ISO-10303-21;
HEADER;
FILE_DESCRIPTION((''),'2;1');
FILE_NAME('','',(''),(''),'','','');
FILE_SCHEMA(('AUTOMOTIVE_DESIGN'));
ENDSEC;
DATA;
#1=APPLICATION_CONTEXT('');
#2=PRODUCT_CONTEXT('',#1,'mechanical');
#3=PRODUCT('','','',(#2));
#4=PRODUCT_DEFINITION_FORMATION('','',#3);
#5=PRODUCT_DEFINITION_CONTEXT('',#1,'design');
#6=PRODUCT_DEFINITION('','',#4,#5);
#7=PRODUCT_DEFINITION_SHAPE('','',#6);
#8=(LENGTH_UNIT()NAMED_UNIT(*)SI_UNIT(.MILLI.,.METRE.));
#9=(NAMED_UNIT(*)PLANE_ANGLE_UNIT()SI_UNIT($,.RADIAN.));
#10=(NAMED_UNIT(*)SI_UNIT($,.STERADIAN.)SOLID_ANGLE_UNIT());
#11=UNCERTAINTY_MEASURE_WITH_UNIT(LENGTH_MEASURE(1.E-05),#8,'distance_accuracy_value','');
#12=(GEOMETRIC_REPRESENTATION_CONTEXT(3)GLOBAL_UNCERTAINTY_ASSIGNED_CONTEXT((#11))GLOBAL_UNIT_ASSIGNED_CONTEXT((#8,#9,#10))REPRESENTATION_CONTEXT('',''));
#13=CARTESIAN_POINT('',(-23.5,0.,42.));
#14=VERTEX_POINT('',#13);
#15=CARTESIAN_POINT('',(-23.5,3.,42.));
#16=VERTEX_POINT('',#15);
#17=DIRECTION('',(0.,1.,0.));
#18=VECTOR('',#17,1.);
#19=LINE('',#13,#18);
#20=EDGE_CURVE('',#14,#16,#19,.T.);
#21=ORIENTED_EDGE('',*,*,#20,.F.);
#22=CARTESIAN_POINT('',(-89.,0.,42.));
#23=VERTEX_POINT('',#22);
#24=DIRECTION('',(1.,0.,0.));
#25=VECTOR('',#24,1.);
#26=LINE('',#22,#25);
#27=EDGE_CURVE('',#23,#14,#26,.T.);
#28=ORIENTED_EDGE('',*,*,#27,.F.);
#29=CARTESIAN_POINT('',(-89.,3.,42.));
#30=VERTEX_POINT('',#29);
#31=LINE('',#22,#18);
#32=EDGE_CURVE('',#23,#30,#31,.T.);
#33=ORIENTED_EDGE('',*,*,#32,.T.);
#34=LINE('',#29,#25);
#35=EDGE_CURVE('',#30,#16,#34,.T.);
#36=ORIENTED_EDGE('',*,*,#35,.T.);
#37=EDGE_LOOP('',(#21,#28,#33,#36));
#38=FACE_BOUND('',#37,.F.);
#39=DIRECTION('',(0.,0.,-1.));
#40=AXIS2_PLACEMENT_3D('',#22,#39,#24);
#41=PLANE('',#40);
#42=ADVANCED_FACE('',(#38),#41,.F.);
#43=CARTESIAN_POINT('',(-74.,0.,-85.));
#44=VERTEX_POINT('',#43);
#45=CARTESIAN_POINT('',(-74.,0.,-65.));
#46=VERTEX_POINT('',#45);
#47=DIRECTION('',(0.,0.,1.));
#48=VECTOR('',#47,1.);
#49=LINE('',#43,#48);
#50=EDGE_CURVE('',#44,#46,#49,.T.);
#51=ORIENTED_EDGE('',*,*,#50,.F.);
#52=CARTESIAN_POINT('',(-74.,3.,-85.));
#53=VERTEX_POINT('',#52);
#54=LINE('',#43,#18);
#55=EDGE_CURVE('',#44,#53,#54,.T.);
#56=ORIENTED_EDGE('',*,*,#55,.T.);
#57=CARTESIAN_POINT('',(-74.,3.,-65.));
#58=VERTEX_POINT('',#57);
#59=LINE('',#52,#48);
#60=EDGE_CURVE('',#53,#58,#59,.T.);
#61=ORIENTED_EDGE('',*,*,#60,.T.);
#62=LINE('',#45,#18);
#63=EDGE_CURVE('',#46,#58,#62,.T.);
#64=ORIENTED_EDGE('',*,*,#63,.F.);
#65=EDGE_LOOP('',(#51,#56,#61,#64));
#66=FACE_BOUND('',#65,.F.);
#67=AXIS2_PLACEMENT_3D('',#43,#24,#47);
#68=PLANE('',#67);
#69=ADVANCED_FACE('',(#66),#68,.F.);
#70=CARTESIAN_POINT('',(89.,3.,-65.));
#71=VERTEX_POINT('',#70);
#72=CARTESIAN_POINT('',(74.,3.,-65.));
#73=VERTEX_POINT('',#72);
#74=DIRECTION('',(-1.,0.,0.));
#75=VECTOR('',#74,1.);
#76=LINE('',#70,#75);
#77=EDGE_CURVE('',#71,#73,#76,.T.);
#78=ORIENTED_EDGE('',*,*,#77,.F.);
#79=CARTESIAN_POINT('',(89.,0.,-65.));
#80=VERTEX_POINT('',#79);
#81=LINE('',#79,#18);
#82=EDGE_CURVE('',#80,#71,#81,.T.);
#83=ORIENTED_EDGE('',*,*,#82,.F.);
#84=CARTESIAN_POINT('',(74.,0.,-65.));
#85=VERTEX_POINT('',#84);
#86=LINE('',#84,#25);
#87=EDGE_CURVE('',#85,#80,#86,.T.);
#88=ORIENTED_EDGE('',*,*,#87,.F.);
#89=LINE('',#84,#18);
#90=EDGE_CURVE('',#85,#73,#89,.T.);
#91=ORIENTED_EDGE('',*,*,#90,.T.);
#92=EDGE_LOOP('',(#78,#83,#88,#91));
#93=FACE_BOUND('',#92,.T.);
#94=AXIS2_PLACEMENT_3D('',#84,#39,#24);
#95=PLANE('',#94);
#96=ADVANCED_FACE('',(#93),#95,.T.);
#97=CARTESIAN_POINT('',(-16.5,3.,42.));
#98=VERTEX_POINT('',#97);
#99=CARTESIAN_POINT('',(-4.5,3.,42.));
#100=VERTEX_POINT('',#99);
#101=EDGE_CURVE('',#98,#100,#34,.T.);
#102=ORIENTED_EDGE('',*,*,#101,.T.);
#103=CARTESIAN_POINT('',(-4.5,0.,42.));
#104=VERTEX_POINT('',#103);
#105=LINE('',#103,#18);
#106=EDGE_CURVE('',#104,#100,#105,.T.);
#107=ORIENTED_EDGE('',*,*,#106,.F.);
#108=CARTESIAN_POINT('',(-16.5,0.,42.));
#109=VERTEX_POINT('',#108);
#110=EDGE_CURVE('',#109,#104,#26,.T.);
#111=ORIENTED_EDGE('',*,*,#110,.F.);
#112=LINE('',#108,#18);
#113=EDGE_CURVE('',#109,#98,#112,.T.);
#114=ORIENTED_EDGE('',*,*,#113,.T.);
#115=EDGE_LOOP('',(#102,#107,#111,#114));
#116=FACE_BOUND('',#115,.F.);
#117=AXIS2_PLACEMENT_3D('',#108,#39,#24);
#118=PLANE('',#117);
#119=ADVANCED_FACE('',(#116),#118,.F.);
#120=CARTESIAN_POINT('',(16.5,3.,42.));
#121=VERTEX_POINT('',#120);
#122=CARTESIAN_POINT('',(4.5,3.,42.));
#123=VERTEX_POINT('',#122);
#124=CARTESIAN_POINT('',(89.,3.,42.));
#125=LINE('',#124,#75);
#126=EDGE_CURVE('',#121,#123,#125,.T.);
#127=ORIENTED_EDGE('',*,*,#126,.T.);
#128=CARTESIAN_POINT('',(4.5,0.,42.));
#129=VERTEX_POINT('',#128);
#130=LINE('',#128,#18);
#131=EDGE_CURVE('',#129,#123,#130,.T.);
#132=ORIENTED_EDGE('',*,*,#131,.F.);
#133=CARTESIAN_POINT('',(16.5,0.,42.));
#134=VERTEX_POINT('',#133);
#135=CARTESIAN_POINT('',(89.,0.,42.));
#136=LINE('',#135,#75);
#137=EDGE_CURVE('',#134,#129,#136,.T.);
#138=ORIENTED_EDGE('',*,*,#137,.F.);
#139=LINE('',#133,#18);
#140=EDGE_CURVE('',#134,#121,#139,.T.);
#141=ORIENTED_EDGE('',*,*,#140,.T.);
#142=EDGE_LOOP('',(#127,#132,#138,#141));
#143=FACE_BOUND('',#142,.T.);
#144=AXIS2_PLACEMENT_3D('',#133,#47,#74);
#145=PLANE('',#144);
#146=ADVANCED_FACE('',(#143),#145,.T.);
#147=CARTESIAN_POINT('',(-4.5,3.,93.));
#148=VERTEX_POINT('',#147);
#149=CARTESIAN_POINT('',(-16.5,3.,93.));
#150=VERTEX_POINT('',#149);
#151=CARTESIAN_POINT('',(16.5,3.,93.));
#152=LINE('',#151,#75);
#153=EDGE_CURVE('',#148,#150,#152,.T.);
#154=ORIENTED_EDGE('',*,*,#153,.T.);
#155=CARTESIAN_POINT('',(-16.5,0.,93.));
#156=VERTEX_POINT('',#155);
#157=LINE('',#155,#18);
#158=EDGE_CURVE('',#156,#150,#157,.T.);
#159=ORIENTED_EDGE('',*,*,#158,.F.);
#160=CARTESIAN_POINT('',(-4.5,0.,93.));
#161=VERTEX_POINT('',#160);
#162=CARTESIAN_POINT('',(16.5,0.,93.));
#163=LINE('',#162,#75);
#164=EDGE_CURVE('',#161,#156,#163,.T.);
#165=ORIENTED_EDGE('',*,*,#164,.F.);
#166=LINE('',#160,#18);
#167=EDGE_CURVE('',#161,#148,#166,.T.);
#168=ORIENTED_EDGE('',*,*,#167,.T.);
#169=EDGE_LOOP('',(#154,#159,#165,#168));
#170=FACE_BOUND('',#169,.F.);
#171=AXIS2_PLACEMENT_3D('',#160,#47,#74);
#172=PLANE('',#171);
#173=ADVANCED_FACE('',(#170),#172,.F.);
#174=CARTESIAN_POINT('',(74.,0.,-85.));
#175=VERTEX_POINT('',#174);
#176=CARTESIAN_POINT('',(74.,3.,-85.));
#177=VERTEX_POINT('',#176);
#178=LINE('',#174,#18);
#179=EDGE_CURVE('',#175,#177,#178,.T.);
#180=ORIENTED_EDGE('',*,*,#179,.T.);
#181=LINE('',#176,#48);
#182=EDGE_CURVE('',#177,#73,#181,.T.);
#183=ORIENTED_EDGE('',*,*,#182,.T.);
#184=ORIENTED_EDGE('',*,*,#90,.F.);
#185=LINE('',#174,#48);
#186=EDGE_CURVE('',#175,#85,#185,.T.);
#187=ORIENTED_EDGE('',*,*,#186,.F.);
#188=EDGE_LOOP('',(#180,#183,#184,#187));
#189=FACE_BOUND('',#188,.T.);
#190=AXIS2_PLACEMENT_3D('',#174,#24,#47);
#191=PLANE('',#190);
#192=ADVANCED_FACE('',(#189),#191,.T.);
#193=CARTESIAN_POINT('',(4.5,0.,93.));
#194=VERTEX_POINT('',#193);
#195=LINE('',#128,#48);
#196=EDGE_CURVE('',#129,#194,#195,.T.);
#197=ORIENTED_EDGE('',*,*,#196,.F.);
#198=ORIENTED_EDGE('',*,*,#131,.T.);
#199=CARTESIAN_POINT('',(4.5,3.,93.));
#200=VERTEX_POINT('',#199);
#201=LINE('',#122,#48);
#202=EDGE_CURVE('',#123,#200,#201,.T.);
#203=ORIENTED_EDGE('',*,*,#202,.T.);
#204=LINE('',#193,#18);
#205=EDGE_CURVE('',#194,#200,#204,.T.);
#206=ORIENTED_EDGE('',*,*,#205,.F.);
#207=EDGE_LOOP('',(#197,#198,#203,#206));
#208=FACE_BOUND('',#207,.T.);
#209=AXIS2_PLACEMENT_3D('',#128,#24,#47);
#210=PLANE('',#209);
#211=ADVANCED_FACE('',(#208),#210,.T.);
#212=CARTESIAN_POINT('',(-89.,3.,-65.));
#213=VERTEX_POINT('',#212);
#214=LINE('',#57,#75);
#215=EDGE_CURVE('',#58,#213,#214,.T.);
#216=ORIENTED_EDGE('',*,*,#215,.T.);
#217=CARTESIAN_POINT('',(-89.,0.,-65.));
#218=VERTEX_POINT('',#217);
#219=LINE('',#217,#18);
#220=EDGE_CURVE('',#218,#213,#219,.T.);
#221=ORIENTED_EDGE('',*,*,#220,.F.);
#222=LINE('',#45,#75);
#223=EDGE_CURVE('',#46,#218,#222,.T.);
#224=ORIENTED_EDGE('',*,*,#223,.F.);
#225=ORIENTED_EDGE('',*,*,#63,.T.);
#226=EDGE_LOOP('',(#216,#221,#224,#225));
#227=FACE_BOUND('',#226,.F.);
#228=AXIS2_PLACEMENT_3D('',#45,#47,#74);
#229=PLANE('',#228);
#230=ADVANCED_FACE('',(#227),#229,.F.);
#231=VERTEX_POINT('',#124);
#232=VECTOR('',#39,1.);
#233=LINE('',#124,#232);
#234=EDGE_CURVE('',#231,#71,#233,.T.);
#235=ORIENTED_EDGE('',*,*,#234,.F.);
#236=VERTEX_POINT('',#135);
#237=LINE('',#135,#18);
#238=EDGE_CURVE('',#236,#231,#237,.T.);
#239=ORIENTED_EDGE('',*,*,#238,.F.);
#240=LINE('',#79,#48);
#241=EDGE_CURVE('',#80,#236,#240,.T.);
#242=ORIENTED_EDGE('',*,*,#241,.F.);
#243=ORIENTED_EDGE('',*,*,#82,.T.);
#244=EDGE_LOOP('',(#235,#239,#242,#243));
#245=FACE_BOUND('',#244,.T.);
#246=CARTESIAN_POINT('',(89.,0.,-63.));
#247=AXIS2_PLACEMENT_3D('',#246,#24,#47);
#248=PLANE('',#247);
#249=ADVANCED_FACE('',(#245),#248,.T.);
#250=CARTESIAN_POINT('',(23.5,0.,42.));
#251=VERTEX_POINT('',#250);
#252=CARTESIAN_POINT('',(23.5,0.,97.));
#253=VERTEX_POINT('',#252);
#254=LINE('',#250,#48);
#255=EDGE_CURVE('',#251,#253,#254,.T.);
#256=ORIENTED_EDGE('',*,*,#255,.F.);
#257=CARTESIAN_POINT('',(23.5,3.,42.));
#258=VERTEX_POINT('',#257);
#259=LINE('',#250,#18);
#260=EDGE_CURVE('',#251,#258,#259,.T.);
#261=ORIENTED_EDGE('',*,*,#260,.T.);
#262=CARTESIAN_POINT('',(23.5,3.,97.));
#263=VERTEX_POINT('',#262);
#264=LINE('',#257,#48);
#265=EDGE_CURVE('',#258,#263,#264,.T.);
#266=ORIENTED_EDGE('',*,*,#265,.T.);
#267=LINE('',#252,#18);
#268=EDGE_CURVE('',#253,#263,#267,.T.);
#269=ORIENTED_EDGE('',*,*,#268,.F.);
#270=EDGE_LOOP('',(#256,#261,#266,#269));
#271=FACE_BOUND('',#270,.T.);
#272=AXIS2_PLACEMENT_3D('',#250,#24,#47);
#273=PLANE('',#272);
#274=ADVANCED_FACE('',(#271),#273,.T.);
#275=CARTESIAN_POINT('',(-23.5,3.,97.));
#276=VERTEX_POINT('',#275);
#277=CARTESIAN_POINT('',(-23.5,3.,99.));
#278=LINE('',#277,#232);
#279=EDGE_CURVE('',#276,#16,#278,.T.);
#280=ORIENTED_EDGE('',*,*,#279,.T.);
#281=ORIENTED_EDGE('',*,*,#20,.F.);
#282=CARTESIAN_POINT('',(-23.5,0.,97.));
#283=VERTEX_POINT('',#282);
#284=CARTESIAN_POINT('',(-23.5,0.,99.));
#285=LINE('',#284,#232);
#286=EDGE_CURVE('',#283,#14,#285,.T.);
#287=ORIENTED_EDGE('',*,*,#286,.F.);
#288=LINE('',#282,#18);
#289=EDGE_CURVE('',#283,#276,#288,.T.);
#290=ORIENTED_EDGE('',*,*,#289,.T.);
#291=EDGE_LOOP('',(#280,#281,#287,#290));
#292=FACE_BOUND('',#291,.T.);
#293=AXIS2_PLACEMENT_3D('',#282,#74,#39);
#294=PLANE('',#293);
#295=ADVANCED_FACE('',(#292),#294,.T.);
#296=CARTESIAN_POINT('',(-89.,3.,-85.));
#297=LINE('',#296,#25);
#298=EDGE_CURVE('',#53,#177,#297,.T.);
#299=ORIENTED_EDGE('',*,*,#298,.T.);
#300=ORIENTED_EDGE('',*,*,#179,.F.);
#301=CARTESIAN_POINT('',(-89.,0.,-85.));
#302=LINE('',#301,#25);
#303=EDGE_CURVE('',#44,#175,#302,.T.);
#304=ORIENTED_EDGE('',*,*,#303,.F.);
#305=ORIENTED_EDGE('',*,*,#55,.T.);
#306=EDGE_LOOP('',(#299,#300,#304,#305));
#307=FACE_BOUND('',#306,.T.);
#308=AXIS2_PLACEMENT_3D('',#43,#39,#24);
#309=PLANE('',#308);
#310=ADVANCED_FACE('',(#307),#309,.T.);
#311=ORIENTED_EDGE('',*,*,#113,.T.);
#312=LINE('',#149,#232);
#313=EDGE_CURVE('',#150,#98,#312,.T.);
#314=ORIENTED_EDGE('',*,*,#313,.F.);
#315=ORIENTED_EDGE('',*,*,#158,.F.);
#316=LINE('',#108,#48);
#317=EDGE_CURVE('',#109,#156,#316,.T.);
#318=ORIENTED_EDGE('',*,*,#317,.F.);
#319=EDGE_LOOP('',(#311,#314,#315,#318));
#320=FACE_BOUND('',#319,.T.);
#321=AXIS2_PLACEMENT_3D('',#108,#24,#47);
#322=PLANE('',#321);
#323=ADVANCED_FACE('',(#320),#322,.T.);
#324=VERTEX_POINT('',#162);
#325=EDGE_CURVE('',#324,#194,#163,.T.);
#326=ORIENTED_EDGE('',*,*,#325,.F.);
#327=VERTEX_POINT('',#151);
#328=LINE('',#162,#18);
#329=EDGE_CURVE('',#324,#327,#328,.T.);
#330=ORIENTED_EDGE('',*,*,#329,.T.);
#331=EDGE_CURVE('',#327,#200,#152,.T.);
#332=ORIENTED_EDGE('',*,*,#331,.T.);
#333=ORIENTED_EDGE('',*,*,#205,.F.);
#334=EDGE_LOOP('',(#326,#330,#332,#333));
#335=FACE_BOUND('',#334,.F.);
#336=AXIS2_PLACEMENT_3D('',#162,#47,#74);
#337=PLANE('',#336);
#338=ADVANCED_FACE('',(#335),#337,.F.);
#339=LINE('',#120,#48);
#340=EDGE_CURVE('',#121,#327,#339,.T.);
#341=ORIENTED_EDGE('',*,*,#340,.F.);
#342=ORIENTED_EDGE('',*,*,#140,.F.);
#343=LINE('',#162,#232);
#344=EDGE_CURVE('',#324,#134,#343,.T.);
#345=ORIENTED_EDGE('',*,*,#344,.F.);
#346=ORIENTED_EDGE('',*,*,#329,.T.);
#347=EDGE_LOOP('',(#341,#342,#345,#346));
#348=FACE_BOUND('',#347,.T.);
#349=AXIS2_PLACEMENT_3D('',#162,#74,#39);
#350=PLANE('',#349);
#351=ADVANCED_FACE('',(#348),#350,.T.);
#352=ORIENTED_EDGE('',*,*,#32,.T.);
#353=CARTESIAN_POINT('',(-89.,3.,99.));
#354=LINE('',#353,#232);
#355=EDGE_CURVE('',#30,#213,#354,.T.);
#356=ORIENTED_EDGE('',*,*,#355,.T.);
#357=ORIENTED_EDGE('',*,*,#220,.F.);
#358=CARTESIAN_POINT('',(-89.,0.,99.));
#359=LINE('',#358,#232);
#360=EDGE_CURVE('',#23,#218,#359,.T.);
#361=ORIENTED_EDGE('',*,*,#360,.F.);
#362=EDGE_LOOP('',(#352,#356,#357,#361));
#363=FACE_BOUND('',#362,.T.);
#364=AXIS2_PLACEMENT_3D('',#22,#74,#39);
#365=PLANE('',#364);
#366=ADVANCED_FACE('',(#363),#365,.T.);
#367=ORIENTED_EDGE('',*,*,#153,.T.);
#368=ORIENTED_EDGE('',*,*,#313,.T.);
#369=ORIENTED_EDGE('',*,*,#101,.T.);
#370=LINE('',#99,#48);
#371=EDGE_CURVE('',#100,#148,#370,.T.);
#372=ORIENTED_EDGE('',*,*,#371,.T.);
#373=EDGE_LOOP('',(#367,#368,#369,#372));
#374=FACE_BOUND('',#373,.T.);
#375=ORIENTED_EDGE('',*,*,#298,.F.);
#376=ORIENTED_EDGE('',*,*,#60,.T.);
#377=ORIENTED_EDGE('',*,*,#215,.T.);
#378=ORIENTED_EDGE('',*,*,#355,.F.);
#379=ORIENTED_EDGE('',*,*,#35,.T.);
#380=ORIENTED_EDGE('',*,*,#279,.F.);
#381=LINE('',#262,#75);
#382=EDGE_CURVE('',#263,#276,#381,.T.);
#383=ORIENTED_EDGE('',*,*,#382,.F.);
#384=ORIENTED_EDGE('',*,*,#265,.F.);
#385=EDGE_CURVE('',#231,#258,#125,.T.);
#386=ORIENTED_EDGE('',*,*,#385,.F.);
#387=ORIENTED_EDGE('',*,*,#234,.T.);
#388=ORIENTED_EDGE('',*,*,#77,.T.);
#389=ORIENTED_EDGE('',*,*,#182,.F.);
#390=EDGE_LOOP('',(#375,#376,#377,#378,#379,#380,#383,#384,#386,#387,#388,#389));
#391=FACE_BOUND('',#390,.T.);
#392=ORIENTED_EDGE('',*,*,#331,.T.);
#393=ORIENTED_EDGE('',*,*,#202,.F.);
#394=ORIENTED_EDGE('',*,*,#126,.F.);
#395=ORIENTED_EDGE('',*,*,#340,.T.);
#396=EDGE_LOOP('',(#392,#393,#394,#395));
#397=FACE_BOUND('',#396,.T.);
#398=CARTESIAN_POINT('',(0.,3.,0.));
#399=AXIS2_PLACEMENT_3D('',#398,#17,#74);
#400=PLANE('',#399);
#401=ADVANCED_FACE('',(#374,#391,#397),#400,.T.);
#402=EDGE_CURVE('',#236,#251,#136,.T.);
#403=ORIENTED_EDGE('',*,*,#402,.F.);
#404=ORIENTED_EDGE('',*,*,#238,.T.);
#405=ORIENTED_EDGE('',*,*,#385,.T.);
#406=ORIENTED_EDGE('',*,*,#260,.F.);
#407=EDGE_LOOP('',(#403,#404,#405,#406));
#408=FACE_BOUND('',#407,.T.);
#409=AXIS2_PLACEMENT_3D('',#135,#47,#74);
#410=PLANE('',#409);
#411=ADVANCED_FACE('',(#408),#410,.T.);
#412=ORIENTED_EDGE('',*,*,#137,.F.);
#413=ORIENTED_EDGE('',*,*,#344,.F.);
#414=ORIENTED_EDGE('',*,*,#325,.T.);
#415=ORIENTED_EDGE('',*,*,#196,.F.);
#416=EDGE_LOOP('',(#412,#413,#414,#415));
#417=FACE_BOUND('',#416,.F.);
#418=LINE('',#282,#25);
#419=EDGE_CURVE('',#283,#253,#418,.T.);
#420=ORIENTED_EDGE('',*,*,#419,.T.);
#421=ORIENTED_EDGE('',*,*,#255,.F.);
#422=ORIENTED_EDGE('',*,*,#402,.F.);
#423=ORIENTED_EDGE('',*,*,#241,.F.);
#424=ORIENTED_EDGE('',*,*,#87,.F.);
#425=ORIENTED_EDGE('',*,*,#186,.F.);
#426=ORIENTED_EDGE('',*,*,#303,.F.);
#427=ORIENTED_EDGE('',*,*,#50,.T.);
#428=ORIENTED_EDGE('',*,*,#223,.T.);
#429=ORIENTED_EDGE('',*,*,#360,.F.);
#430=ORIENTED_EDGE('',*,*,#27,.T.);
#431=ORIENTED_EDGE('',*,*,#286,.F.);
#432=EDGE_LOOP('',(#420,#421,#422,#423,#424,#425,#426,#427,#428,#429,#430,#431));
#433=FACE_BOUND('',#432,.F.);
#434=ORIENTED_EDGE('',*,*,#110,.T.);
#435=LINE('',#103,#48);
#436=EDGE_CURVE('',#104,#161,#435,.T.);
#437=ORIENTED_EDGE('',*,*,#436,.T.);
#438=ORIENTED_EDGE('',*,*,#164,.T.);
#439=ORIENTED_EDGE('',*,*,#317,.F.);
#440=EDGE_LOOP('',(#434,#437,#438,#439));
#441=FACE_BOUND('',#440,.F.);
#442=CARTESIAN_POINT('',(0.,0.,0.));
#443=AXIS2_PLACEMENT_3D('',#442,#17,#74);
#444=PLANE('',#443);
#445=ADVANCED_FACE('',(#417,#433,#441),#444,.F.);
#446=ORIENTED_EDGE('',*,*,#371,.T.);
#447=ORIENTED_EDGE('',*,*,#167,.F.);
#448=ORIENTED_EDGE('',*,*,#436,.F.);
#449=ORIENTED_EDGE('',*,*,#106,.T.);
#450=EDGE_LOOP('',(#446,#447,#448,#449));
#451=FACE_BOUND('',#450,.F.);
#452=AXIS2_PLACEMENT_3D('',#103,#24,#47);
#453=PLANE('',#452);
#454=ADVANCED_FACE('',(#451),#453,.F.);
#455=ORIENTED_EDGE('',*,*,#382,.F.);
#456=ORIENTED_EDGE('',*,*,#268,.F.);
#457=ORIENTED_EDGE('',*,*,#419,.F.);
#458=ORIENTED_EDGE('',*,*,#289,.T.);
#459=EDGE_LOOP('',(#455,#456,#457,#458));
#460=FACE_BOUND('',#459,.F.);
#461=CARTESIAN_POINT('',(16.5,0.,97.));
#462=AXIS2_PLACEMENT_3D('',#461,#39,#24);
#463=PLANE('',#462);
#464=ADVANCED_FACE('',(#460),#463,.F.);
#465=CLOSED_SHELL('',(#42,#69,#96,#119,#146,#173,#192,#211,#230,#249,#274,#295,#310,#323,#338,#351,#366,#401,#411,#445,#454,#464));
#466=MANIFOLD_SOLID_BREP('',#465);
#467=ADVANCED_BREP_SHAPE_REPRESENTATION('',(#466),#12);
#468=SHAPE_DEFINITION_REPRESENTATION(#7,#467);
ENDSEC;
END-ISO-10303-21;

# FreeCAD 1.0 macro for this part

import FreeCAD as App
import Part
import Sketcher
Q = App.Units.Quantity

doc = App.newDocument("Part")
params = doc.addObject("Spreadsheet::Sheet", "Params")
for row, (alias, value) in enumerate([
    ("sketch1_width", "15 mm"),
    ("sketch1_height", "55 mm"),
    ("sketch1_height2", "20 mm"),
    ("sketch1_width2", "47 mm"),
    ("sketch1_height3", "107 mm"),
    ("pad1_length", "3 mm"),
], start=1):
    params.set(f"A{row}", alias)
    params.set(f"B{row}", "=" + value)
    params.setAlias(f"B{row}", alias)

body = doc.addObject("PartDesign::Body", "Body")

sketch1 = doc.addObject("Sketcher::SketchObject", "Sketch")
body.addObject(sketch1)
sketch1.AttachmentSupport = (doc.XZ_Plane, [""])
sketch1.MapMode = "FlatFace"
sketch1.addGeometry([
    Part.LineSegment(App.Vector(23.5, 97, 0), App.Vector(23.5, 42, 0)),
    Part.LineSegment(App.Vector(23.5, 42, 0), App.Vector(89, 42, 0)),
    Part.LineSegment(App.Vector(89, 42, 0), App.Vector(89, -65, 0)),
    Part.LineSegment(App.Vector(89, -65, 0), App.Vector(74, -65, 0)),
    Part.LineSegment(App.Vector(74, -65, 0), App.Vector(74, -85, 0)),
    Part.LineSegment(App.Vector(74, -85, 0), App.Vector(-74, -85, 0)),
    Part.LineSegment(App.Vector(-74, -85, 0), App.Vector(-74, -65, 0)),
    Part.LineSegment(App.Vector(-74, -65, 0), App.Vector(-89, -65, 0)),
    Part.LineSegment(App.Vector(-89, -65, 0), App.Vector(-89, 42, 0)),
    Part.LineSegment(App.Vector(-89, 42, 0), App.Vector(-23.5, 42, 0)),
    Part.LineSegment(App.Vector(-23.5, 42, 0), App.Vector(-23.5, 97, 0)),
    Part.LineSegment(App.Vector(-23.5, 97, 0), App.Vector(23.5, 97, 0)),
    Part.LineSegment(App.Vector(16.5, 93, 0), App.Vector(4.5, 93, 0)),
    Part.LineSegment(App.Vector(4.5, 93, 0), App.Vector(4.5, 42, 0)),
    Part.LineSegment(App.Vector(4.5, 42, 0), App.Vector(16.5, 42, 0)),
    Part.LineSegment(App.Vector(16.5, 42, 0), App.Vector(16.5, 93, 0)),
    Part.LineSegment(App.Vector(-4.5, 42, 0), App.Vector(-4.5, 93, 0)),
    Part.LineSegment(App.Vector(-4.5, 93, 0), App.Vector(-16.5, 93, 0)),
    Part.LineSegment(App.Vector(-16.5, 93, 0), App.Vector(-16.5, 42, 0)),
    Part.LineSegment(App.Vector(-16.5, 42, 0), App.Vector(-4.5, 42, 0)),
], False)
sketch1.addConstraint([
    Sketcher.Constraint("Coincident", 0, 2, 1, 1),
    Sketcher.Constraint("Coincident", 1, 2, 2, 1),
    Sketcher.Constraint("Coincident", 2, 2, 3, 1),
    Sketcher.Constraint("Coincident", 3, 2, 4, 1),
    Sketcher.Constraint("Coincident", 4, 2, 5, 1),
    Sketcher.Constraint("Coincident", 5, 2, 6, 1),
    Sketcher.Constraint("Coincident", 6, 2, 7, 1),
    Sketcher.Constraint("Coincident", 7, 2, 8, 1),
    Sketcher.Constraint("Coincident", 8, 2, 9, 1),
    Sketcher.Constraint("Coincident", 9, 2, 10, 1),
    Sketcher.Constraint("Coincident", 10, 2, 11, 1),
    Sketcher.Constraint("Coincident", 11, 2, 0, 1),
    Sketcher.Constraint("Coincident", 12, 2, 13, 1),
    Sketcher.Constraint("Coincident", 13, 2, 14, 1),
    Sketcher.Constraint("Coincident", 14, 2, 15, 1),
    Sketcher.Constraint("Coincident", 15, 2, 12, 1),
    Sketcher.Constraint("Coincident", 16, 2, 17, 1),
    Sketcher.Constraint("Coincident", 17, 2, 18, 1),
    Sketcher.Constraint("Coincident", 18, 2, 19, 1),
    Sketcher.Constraint("Coincident", 19, 2, 16, 1),
    Sketcher.Constraint("Vertical", 0),
    Sketcher.Constraint("Horizontal", 1),
    Sketcher.Constraint("Vertical", 2),
    Sketcher.Constraint("Horizontal", 3),
    Sketcher.Constraint("Vertical", 4),
    Sketcher.Constraint("Horizontal", 5),
    Sketcher.Constraint("Vertical", 6),
    Sketcher.Constraint("Horizontal", 7),
    Sketcher.Constraint("Vertical", 8),
    Sketcher.Constraint("Horizontal", 9),
    Sketcher.Constraint("Vertical", 10),
    Sketcher.Constraint("Horizontal", 11),
    Sketcher.Constraint("Horizontal", 12),
    Sketcher.Constraint("Vertical", 13),
    Sketcher.Constraint("Horizontal", 14),
    Sketcher.Constraint("Vertical", 15),
    Sketcher.Constraint("Vertical", 16),
    Sketcher.Constraint("Horizontal", 17),
    Sketcher.Constraint("Vertical", 18),
    Sketcher.Constraint("Horizontal", 19),
    Sketcher.Constraint("Symmetric", 3, 2, 6, 2, -2),
    Sketcher.Constraint("Symmetric", 1, 2, 8, 2, -2),
    Sketcher.Constraint("Symmetric", 12, 2, 16, 2, -2),
    Sketcher.Constraint("Symmetric", 14, 2, 18, 2, -2),
    Sketcher.Constraint("Horizontal", 9, 2, 13, 2),
    Sketcher.Constraint("Equal", 1, 9),
    Sketcher.Constraint("DistanceX", 3, 2, 3, 1, Q("15 mm")),
    Sketcher.Constraint("DistanceY", 0, 2, 0, 1, Q("55 mm")),
    Sketcher.Constraint("DistanceY", 4, 2, 4, 1, Q("20 mm")),
    Sketcher.Constraint("DistanceX", 8, 2, 1, 2, Q("178 mm")),
    Sketcher.Constraint("DistanceY", 12, 2, 11, 2, Q("4 mm")),
    Sketcher.Constraint("DistanceX", 14, 2, 0, 2, Q("7 mm")),
    Sketcher.Constraint("DistanceX", 16, 2, 12, 2, Q("9 mm")),
    Sketcher.Constraint("DistanceX", 11, 1, 11, 2, Q("47 mm")),
    Sketcher.Constraint("DistanceY", 2, 2, 2, 1, Q("107 mm")),
    Sketcher.Constraint("DistanceY", -1, 1, 0, 2, Q("42 mm")),
])
sketch1.setExpression("Constraints[46]", "Params.sketch1_width")
sketch1.setExpression("Constraints[47]", "Params.sketch1_height")
sketch1.setExpression("Constraints[48]", "Params.sketch1_height2")
sketch1.setExpression("Constraints[53]", "Params.sketch1_width2")
sketch1.setExpression("Constraints[54]", "Params.sketch1_height3")
pad1 = doc.addObject("PartDesign::Pad", "Pad")
body.addObject(pad1)
pad1.Profile = sketch1
pad1.setExpression("Length", "Params.pad1_length")
pad1.Reversed = True

doc.recompute()
